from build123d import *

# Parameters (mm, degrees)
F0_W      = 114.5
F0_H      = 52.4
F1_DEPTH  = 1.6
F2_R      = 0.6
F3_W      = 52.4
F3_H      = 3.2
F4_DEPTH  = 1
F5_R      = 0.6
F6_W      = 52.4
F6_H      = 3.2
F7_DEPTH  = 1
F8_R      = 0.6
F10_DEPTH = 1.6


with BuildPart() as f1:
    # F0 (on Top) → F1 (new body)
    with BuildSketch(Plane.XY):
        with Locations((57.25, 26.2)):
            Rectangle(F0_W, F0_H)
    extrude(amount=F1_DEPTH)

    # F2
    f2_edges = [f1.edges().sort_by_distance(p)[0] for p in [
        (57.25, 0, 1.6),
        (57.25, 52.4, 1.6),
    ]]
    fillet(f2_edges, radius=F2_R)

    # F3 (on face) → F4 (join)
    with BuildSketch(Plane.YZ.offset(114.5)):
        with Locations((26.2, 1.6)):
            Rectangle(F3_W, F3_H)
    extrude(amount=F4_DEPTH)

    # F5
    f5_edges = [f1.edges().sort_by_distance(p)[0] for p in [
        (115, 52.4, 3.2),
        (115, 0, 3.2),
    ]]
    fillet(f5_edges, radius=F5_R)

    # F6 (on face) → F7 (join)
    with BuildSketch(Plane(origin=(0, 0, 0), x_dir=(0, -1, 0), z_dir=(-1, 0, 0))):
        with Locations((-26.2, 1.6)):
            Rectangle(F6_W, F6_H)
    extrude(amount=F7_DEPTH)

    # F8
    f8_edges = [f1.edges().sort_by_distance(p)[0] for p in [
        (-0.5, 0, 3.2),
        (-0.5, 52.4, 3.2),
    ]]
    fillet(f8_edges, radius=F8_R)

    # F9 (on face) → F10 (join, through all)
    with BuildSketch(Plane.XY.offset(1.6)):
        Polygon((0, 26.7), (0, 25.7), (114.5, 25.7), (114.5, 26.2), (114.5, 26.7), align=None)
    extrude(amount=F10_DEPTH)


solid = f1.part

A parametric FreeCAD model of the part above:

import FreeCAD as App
import Part
import Sketcher
from FreeCAD import Vector


def edges_at(feature, points):
    """Names of the edges that pass closest to the given points."""
    edges = feature.Shape.Edges
    near = lambda p: min(range(len(edges)), key=lambda i: edges[i].distToShape(Part.Vertex(*p))[0])
    return sorted({f"Edge{near(p) + 1}" for p in points})


def add_polygon(sketch, points):
    """Adds a closed chain of lines whose ends are joined by coincident constraints."""
    first, n = sketch.GeometryCount, len(points)
    for a, b in zip(points, points[1:] + points[:1]):
        sketch.addGeometry(Part.LineSegment(App.Vector(*a, 0), App.Vector(*b, 0)), False)
    for i in range(n):
        sketch.addConstraint(Sketcher.Constraint("Coincident", first + i, 2, first + (i + 1) % n, 1))

doc = App.newDocument("Part")
body = doc.addObject("PartDesign::Body", "Body")

# Sketch on XY plane
sketch1 = doc.addObject("Sketcher::SketchObject", "Sketch")
body.addObject(sketch1)
sketch1.AttachmentSupport = (doc.XY_Plane, [""])
sketch1.MapMode = "FlatFace"
add_polygon(sketch1, [(0, 52), (0, 0), (114, 0), (114, 52)])  # lines 0-3
sketch1.addConstraint(Sketcher.Constraint("Vertical", 0))
sketch1.addConstraint(Sketcher.Constraint("Horizontal", 1))
sketch1.addConstraint(Sketcher.Constraint("Vertical", 2))
sketch1.addConstraint(Sketcher.Constraint("Horizontal", 3))
sketch1.addConstraint(Sketcher.Constraint("Coincident", 0, 2, -1, 1))
sketch1.addConstraint(Sketcher.Constraint("DistanceX", 1, 1, 1, 2, 114.5))
sketch1.addConstraint(Sketcher.Constraint("DistanceY", 0, 2, 0, 1, 52.4))
pad1 = doc.addObject("PartDesign::Pad", "Pad")
body.addObject(pad1)
pad1.Profile = sketch1
pad1.Length = 1.6
doc.recompute()

fillet = doc.addObject("PartDesign::Fillet", "Fillet")
body.addObject(fillet)
fillet.Base = (pad1, edges_at(pad1, [(57.25, 0, 1.6), (57.25, 52.4, 1.6)]))
fillet.Radius = 0.6

# Sketch on YZ plane
sketch2 = doc.addObject("Sketcher::SketchObject", "Sketch001")
body.addObject(sketch2)
sketch2.AttachmentSupport = (doc.YZ_Plane, [""])
sketch2.MapMode = "FlatFace"
sketch2.AttachmentOffset = App.Placement(Vector(0, 0, 114.5), App.Rotation())
add_polygon(sketch2, [(0, 3.2), (0, 0), (52.4, 0), (52.4, 3.2)])  # lines 0-3
sketch2.addConstraint(Sketcher.Constraint("Vertical", 0))
sketch2.addConstraint(Sketcher.Constraint("Horizontal", 1))
sketch2.addConstraint(Sketcher.Constraint("Vertical", 2))
sketch2.addConstraint(Sketcher.Constraint("Horizontal", 3))
sketch2.addConstraint(Sketcher.Constraint("Coincident", 0, 2, -1, 1))
sketch2.addConstraint(Sketcher.Constraint("DistanceX", 1, 1, 1, 2, 52.4))
sketch2.addConstraint(Sketcher.Constraint("DistanceY", 0, 2, 0, 1, 3.2))
pad2 = doc.addObject("PartDesign::Pad", "Pad001")
body.addObject(pad2)
pad2.Profile = sketch2
pad2.Length = 1
doc.recompute()

fillet2 = doc.addObject("PartDesign::Fillet", "Fillet001")
body.addObject(fillet2)
fillet2.Base = (pad2, edges_at(pad2, [(115, 52.4, 3.2), (115, 0, 3.2)]))
fillet2.Radius = 0.6

# Sketch on YZ plane
sketch3 = doc.addObject("Sketcher::SketchObject", "Sketch002")
body.addObject(sketch3)
sketch3.AttachmentSupport = (doc.YZ_Plane, [""])
sketch3.MapMode = "FlatFace"
add_polygon(sketch3, [(52.4, 3.2), (52.4, 0), (0, 0), (0, 3.2)])  # lines 0-3
sketch3.addConstraint(Sketcher.Constraint("Vertical", 0))
sketch3.addConstraint(Sketcher.Constraint("Horizontal", 1))
sketch3.addConstraint(Sketcher.Constraint("Vertical", 2))
sketch3.addConstraint(Sketcher.Constraint("Horizontal", 3))
sketch3.addConstraint(Sketcher.Constraint("Coincident", 1, 2, -1, 1))
sketch3.addConstraint(Sketcher.Constraint("DistanceX", 1, 2, 1, 1, 52.4))
sketch3.addConstraint(Sketcher.Constraint("DistanceY", 0, 2, 0, 1, 3.2))
pad3 = doc.addObject("PartDesign::Pad", "Pad002")
body.addObject(pad3)
pad3.Profile = sketch3
pad3.Length = 1
pad3.Reversed = True
doc.recompute()

fillet3 = doc.addObject("PartDesign::Fillet", "Fillet002")
body.addObject(fillet3)
fillet3.Base = (pad3, edges_at(pad3, [(-0.5, 0, 3.2), (-0.5, 52.4, 3.2)]))
fillet3.Radius = 0.6

# Sketch on XY plane
sketch4 = doc.addObject("Sketcher::SketchObject", "Sketch003")
body.addObject(sketch4)
sketch4.AttachmentSupport = (doc.XY_Plane, [""])
sketch4.MapMode = "FlatFace"
sketch4.AttachmentOffset = App.Placement(Vector(0, 0, 1.6), App.Rotation())
add_polygon(sketch4, [(0, 26.7), (0, 25.7), (114.5, 25.7), (114.5, 26.7)])  # lines 0-3
sketch4.addConstraint(Sketcher.Constraint("Vertical", 0))
sketch4.addConstraint(Sketcher.Constraint("Horizontal", 1))
sketch4.addConstraint(Sketcher.Constraint("Vertical", 2))
sketch4.addConstraint(Sketcher.Constraint("Horizontal", 3))
sketch4.addConstraint(Sketcher.Constraint("PointOnObject", 0, 2, -2))
sketch4.addConstraint(Sketcher.Constraint("DistanceY", 0, 2, 0, 1, 1.0))
sketch4.addConstraint(Sketcher.Constraint("DistanceX", 1, 1, 1, 2, 114.5))
sketch4.addConstraint(Sketcher.Constraint("DistanceY", -1, 1, 0, 2, 25.7))
pad4 = doc.addObject("PartDesign::Pad", "Pad003")
body.addObject(pad4)
pad4.Profile = sketch4
pad4.Length = 1.6

doc.recompute()
